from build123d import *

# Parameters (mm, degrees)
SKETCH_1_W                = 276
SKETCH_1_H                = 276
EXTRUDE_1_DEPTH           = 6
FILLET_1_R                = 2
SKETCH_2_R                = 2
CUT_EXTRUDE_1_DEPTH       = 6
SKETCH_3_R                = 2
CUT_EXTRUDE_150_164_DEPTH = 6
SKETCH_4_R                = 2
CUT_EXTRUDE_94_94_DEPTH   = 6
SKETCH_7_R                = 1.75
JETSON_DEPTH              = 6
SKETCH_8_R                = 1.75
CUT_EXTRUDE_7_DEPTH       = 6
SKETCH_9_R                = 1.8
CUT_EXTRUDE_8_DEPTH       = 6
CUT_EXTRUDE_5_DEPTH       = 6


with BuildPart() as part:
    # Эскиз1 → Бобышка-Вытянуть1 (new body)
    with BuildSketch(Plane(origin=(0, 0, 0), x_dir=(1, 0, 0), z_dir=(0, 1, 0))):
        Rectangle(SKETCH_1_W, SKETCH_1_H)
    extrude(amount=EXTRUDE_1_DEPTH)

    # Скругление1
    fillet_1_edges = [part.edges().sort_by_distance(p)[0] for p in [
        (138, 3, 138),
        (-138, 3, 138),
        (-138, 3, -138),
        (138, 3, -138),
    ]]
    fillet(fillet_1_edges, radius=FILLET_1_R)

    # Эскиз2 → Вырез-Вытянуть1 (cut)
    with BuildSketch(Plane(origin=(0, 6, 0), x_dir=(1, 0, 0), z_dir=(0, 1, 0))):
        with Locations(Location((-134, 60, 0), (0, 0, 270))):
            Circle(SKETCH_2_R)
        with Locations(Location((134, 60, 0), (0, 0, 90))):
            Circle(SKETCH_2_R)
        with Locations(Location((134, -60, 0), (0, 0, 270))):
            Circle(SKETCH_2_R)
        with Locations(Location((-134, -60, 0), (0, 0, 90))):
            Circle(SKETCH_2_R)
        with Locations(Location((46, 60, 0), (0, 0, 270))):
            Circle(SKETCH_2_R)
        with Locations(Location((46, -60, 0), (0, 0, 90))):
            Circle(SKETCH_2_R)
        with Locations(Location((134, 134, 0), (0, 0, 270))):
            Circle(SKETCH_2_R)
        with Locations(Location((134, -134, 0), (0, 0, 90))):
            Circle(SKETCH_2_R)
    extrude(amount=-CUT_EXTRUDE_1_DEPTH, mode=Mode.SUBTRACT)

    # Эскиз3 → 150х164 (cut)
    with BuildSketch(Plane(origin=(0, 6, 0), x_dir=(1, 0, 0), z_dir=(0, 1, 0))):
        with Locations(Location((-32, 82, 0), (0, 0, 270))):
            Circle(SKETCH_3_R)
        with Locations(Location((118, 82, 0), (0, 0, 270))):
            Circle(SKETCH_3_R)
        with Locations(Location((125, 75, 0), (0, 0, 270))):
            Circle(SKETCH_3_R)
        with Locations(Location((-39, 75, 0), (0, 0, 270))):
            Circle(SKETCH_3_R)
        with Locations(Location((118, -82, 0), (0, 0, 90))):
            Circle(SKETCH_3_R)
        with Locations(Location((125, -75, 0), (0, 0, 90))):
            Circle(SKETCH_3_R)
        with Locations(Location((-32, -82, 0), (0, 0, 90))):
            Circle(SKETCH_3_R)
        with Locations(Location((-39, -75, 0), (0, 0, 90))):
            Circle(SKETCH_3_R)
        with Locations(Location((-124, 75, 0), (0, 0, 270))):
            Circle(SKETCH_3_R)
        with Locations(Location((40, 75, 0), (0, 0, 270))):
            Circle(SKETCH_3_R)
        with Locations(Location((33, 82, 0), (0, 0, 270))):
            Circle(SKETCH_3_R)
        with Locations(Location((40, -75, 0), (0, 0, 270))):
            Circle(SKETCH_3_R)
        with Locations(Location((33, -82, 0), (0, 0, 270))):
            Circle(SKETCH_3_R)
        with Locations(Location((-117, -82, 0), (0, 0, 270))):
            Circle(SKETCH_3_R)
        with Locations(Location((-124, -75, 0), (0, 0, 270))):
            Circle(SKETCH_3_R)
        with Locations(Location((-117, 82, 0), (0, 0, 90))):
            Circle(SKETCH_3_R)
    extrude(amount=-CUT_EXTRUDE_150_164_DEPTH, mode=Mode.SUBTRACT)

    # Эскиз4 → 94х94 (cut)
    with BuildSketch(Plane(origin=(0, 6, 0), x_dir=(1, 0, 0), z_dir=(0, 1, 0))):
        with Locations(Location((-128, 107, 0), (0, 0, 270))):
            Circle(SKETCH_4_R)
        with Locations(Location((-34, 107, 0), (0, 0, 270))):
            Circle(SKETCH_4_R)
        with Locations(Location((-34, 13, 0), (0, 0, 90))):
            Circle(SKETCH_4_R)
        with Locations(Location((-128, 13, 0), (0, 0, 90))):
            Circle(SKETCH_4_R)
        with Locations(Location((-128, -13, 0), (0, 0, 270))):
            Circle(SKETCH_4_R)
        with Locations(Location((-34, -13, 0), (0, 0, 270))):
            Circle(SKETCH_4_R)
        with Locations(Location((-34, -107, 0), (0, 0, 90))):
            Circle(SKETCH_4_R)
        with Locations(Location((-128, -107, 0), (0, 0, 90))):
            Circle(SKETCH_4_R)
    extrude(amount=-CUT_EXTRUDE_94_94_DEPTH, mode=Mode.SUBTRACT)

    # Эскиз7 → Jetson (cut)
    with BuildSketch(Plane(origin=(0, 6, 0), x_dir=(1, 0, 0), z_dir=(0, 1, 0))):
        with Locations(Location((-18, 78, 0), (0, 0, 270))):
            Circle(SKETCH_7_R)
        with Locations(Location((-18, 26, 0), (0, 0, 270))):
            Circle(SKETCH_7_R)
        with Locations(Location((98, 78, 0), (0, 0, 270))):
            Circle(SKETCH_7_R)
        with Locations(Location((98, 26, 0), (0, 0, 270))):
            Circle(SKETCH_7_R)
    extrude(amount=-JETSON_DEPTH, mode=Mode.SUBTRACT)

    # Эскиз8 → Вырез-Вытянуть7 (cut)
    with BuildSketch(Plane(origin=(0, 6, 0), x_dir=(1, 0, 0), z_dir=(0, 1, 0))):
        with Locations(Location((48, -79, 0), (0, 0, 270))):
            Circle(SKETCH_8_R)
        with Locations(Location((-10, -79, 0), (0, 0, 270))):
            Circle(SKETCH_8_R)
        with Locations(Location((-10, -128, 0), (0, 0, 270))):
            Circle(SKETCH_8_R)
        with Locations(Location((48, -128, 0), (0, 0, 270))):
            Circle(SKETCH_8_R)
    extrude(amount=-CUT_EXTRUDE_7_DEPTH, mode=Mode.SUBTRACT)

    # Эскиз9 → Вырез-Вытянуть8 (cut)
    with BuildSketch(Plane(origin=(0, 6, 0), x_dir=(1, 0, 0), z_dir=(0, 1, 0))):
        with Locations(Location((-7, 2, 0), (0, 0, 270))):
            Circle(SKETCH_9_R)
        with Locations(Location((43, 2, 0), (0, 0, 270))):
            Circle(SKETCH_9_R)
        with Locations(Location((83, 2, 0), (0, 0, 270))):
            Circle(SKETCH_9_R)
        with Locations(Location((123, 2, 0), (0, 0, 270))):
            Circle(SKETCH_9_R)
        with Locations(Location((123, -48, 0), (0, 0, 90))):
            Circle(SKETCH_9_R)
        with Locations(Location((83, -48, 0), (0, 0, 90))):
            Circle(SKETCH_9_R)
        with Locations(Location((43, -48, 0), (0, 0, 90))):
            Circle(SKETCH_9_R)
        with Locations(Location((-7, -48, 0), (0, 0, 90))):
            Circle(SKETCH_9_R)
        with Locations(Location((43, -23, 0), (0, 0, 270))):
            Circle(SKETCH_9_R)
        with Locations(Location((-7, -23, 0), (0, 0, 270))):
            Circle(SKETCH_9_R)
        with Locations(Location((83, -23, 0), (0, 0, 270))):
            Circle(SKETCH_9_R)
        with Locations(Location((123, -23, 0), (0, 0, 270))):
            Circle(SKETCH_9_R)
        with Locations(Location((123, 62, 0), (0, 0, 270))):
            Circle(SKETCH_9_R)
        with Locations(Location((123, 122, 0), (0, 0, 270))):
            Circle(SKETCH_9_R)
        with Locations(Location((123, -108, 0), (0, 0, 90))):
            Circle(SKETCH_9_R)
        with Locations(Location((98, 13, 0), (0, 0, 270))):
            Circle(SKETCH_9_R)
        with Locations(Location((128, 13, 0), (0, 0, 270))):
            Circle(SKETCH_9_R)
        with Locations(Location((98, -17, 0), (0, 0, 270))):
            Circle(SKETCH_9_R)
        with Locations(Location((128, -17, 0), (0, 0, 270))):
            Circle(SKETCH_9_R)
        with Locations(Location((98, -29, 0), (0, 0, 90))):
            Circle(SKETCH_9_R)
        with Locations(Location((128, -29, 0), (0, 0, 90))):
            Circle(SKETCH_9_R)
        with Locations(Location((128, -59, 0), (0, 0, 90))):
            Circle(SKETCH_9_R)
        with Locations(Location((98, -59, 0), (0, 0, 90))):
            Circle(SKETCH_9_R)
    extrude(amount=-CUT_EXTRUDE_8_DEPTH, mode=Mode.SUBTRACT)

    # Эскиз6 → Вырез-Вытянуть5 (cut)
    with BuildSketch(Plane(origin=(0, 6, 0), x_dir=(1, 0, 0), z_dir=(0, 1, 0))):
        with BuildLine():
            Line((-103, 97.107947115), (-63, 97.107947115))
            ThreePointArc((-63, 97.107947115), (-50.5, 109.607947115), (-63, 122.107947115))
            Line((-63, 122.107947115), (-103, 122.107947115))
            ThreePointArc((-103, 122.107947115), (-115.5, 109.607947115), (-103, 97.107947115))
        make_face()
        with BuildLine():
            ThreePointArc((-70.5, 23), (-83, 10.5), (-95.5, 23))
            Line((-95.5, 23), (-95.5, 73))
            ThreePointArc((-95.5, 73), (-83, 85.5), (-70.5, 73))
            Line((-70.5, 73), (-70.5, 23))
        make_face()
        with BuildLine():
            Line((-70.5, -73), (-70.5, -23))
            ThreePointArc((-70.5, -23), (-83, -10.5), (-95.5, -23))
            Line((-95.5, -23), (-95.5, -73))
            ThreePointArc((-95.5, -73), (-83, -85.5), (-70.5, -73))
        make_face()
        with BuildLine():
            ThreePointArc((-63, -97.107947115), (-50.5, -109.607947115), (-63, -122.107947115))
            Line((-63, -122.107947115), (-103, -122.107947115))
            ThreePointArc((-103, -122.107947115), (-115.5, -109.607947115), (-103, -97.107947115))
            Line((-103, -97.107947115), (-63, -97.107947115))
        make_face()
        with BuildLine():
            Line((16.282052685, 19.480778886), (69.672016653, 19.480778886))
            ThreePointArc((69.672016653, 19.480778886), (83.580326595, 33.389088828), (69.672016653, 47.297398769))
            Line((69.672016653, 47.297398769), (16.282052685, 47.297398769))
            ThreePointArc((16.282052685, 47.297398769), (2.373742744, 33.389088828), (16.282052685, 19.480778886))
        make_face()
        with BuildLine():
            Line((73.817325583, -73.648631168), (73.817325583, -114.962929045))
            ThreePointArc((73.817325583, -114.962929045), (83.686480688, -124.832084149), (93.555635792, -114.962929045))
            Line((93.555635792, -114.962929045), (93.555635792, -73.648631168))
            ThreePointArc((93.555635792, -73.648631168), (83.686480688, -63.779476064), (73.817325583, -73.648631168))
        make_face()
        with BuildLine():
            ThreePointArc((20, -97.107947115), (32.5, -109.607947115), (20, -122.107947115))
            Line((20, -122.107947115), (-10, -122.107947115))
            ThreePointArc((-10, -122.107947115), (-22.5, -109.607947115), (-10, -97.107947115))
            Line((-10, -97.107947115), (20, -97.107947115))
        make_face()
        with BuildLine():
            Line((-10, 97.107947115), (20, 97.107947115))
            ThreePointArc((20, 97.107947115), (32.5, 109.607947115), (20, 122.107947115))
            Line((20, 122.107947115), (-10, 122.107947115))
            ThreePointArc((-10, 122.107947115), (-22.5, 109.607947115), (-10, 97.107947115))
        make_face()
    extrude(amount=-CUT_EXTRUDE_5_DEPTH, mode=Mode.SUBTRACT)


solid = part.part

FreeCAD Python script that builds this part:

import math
import FreeCAD as App
import Part
import Sketcher

V = App.Vector
Q = App.Units.Quantity


def edges_at(feature, points):
    """Names of the edges that pass closest to the given points."""
    edges = feature.Shape.Edges
    near = lambda p: min(range(len(edges)), key=lambda i: edges[i].distToShape(Part.Vertex(*p))[0])
    return sorted({f"Edge{near(p) + 1}" for p in points})


def add_polygon(sketch, points):
    """Adds a closed chain of lines whose ends are joined by coincident constraints."""
    first, n = sketch.GeometryCount, len(points)
    for a, b in zip(points, points[1:] + points[:1]):
        sketch.addGeometry(Part.LineSegment(App.Vector(*a, 0), App.Vector(*b, 0)), False)
    for i in range(n):
        sketch.addConstraint(Sketcher.Constraint("Coincident", first + i, 2, first + (i + 1) % n, 1))

doc = App.newDocument("Part")
params = doc.addObject("Spreadsheet::Sheet", "Params")
for row, (alias, value) in enumerate([
    ("sketch1_width", "276 mm"),
    ("pad1_length", "6 mm"),
    ("fillet_radius", "2 mm"),
    ("sketch2_diameter", "4 mm"),
    ("pocket1_length", "6 mm"),
    ("sketch3_diameter", "4 mm"),
    ("pocket2_length", "6 mm"),
    ("sketch4_diameter", "4 mm"),
    ("pocket3_length", "6 mm"),
    ("sketch5_diameter", "3.5 mm"),
    ("pocket4_length", "6 mm"),
    ("sketch6_diameter", "3.5 mm"),
    ("pocket5_length", "6 mm"),
    ("sketch7_diameter", "3.6 mm"),
    ("pocket6_length", "6 mm"),
    ("sketch8_radius", "12.5 mm"),
    ("sketch8_width", "40 mm"),
    ("sketch8_width2", "30 mm"),
    ("sketch8_height", "50 mm"),
    ("pocket7_length", "6 mm"),
], start=1):
    params.set(f"A{row}", alias)
    params.set(f"B{row}", "=" + value)
    params.setAlias(f"B{row}", alias)

body = doc.addObject("PartDesign::Body", "Body")

# Sketch on XZ plane
sketch1 = doc.addObject("Sketcher::SketchObject", "Sketch")
body.addObject(sketch1)
sketch1.AttachmentSupport = (doc.XZ_Plane, [""])
sketch1.MapMode = "FlatFace"
add_polygon(sketch1, [(-138, -138), (-138, 138), (138, 138), (138, -138)])  # lines 0-3
sketch1.addConstraint(Sketcher.Constraint("Vertical", 0))
sketch1.addConstraint(Sketcher.Constraint("Horizontal", 1))
sketch1.addConstraint(Sketcher.Constraint("Vertical", 2))
sketch1.addConstraint(Sketcher.Constraint("Horizontal", 3))
sketch1.addConstraint(Sketcher.Constraint("Symmetric", 0, 2, 2, 2, -1, 1))
sketch1.addConstraint(Sketcher.Constraint("Equal", 3, 0))
sketch1.addConstraint(Sketcher.Constraint("DistanceX", 1, 1, 1, 2, Q("276 mm")))
sketch1.setExpression("Constraints[10]", "Params.sketch1_width")
pad1 = doc.addObject("PartDesign::Pad", "Pad")
body.addObject(pad1)
pad1.Profile = sketch1
pad1.setExpression("Length", "Params.pad1_length")
pad1.Reversed = True
doc.recompute()

fillet = doc.addObject("PartDesign::Fillet", "Fillet")
body.addObject(fillet)
fillet.Base = (pad1, edges_at(pad1, [
    (138, 3, 138),
    (-138, 3, 138),
    (-138, 3, -138),
    (138, 3, -138),
]))
fillet.setExpression("Radius", "Params.fillet_radius")

# Sketch on XZ plane
sketch2 = doc.addObject("Sketcher::SketchObject", "Sketch001")
body.addObject(sketch2)
sketch2.AttachmentSupport = (doc.XZ_Plane, [""])
sketch2.MapMode = "FlatFace"
sketch2.AttachmentOffset = App.Placement(V(0, 0, -6), App.Rotation())
sketch2.addGeometry(Part.Circle(V(-134, -60, 0), V(0, 0, 1), 2), False)
sketch2.addGeometry(Part.Circle(V(134, -60, 0), V(0, 0, 1), 2), False)
sketch2.addGeometry(Part.Circle(V(134, 60, 0), V(0, 0, 1), 2), False)
sketch2.addGeometry(Part.Circle(V(-134, 60, 0), V(0, 0, 1), 2), False)
sketch2.addGeometry(Part.Circle(V(46, -60, 0), V(0, 0, 1), 2), False)
sketch2.addGeometry(Part.Circle(V(46, 60, 0), V(0, 0, 1), 2), False)
sketch2.addGeometry(Part.Circle(V(134, -134, 0), V(0, 0, 1), 2), False)
sketch2.addGeometry(Part.Circle(V(134, 134, 0), V(0, 0, 1), 2), False)
sketch2.addConstraint(Sketcher.Constraint("Equal", 0, 1))
sketch2.addConstraint(Sketcher.Constraint("Equal", 1, 2))
sketch2.addConstraint(Sketcher.Constraint("Equal", 2, 3))
sketch2.addConstraint(Sketcher.Constraint("Equal", 3, 4))
sketch2.addConstraint(Sketcher.Constraint("Equal", 4, 5))
sketch2.addConstraint(Sketcher.Constraint("Equal", 5, 6))
sketch2.addConstraint(Sketcher.Constraint("Equal", 6, 7))
sketch2.addConstraint(Sketcher.Constraint("Symmetric", 0, 3, 2, 3, -1, 1))
sketch2.addConstraint(Sketcher.Constraint("Symmetric", 1, 3, 3, 3, -1, 1))
sketch2.addConstraint(Sketcher.Constraint("Symmetric", 0, 3, 1, 3, -2))
sketch2.addConstraint(Sketcher.Constraint("Symmetric", 4, 3, 5, 3, -1))
sketch2.addConstraint(Sketcher.Constraint("Symmetric", 6, 3, 7, 3, -1))
sketch2.addConstraint(Sketcher.Constraint("Horizontal", 1, 3, 4, 3))
sketch2.addConstraint(Sketcher.Constraint("Vertical", 2, 3, 6, 3))
sketch2.addConstraint(Sketcher.Constraint("Diameter", 0, Q("4 mm")))
sketch2.addConstraint(Sketcher.Constraint("DistanceX", 0, 3, -1, 1, Q("134 mm")))
sketch2.addConstraint(Sketcher.Constraint("DistanceY", 0, 3, -1, 1, Q("60 mm")))
sketch2.addConstraint(Sketcher.Constraint("DistanceX", -1, 1, 4, 3, Q("46 mm")))
sketch2.addConstraint(Sketcher.Constraint("DistanceY", 6, 3, -1, 1, Q("134 mm")))
sketch2.setExpression("Constraints[14]", "Params.sketch2_diameter")
pocket1 = doc.addObject("PartDesign::Pocket", "Pocket")
body.addObject(pocket1)
pocket1.Profile = sketch2
pocket1.setExpression("Length", "Params.pocket1_length")
pocket1.Reversed = True

# Sketch on XZ plane
sketch3 = doc.addObject("Sketcher::SketchObject", "Sketch002")
body.addObject(sketch3)
sketch3.AttachmentSupport = (doc.XZ_Plane, [""])
sketch3.MapMode = "FlatFace"
sketch3.AttachmentOffset = App.Placement(V(0, 0, -6), App.Rotation())
sketch3.addGeometry(Part.Circle(V(-32, -82, 0), V(0, 0, 1), 2), False)
sketch3.addGeometry(Part.Circle(V(118, -82, 0), V(0, 0, 1), 2), False)
sketch3.addGeometry(Part.Circle(V(125, -75, 0), V(0, 0, 1), 2), False)
sketch3.addGeometry(Part.Circle(V(-39, -75, 0), V(0, 0, 1), 2), False)
sketch3.addGeometry(Part.Circle(V(118, 82, 0), V(0, 0, 1), 2), False)
sketch3.addGeometry(Part.Circle(V(125, 75, 0), V(0, 0, 1), 2), False)
sketch3.addGeometry(Part.Circle(V(-32, 82, 0), V(0, 0, 1), 2), False)
sketch3.addGeometry(Part.Circle(V(-39, 75, 0), V(0, 0, 1), 2), False)
sketch3.addGeometry(Part.Circle(V(-124, -75, 0), V(0, 0, 1), 2), False)
sketch3.addGeometry(Part.Circle(V(40, -75, 0), V(0, 0, 1), 2), False)
sketch3.addGeometry(Part.Circle(V(33, -82, 0), V(0, 0, 1), 2), False)
sketch3.addGeometry(Part.Circle(V(40, 75, 0), V(0, 0, 1), 2), False)
sketch3.addGeometry(Part.Circle(V(33, 82, 0), V(0, 0, 1), 2), False)
sketch3.addGeometry(Part.Circle(V(-117, 82, 0), V(0, 0, 1), 2), False)
sketch3.addGeometry(Part.Circle(V(-124, 75, 0), V(0, 0, 1), 2), False)
sketch3.addGeometry(Part.Circle(V(-117, -82, 0), V(0, 0, 1), 2), False)
sketch3.addConstraint(Sketcher.Constraint("Equal", 0, 1))
sketch3.addConstraint(Sketcher.Constraint("Equal", 1, 2))
sketch3.addConstraint(Sketcher.Constraint("Equal", 2, 3))
sketch3.addConstraint(Sketcher.Constraint("Equal", 3, 4))
sketch3.addConstraint(Sketcher.Constraint("Equal", 4, 5))
sketch3.addConstraint(Sketcher.Constraint("Equal", 5, 6))
sketch3.addConstraint(Sketcher.Constraint("Equal", 6, 7))
sketch3.addConstraint(Sketcher.Constraint("Equal", 7, 8))
sketch3.addConstraint(Sketcher.Constraint("Equal", 8, 9))
sketch3.addConstraint(Sketcher.Constraint("Equal", 9, 10))
sketch3.addConstraint(Sketcher.Constraint("Equal", 10, 11))
sketch3.addConstraint(Sketcher.Constraint("Equal", 11, 12))
sketch3.addConstraint(Sketcher.Constraint("Equal", 12, 13))
sketch3.addConstraint(Sketcher.Constraint("Equal", 13, 14))
sketch3.addConstraint(Sketcher.Constraint("Equal", 14, 15))
sketch3.addConstraint(Sketcher.Constraint("Symmetric", 1, 3, 4, 3, -1))
sketch3.addConstraint(Sketcher.Constraint("Symmetric", 2, 3, 5, 3, -1))
sketch3.addConstraint(Sketcher.Constraint("Symmetric", 0, 3, 6, 3, -1))
sketch3.addConstraint(Sketcher.Constraint("Symmetric", 3, 3, 7, 3, -1))
sketch3.addConstraint(Sketcher.Constraint("Symmetric", 9, 3, 11, 3, -1))
sketch3.addConstraint(Sketcher.Constraint("Symmetric", 10, 3, 12, 3, -1))
sketch3.addConstraint(Sketcher.Constraint("Symmetric", 8, 3, 14, 3, -1))
sketch3.addConstraint(Sketcher.Constraint("Symmetric", 13, 3, 15, 3, -1))
sketch3.addConstraint(Sketcher.Constraint("Horizontal", 0, 3, 1, 3))
sketch3.addConstraint(Sketcher.Constraint("Horizontal", 2, 3, 3, 3))
sketch3.addConstraint(Sketcher.Constraint("Horizontal", 3, 3, 8, 3))
sketch3.addConstraint(Sketcher.Constraint("Horizontal", 8, 3, 9, 3))
sketch3.addConstraint(Sketcher.Constraint("Horizontal", 1, 3, 10, 3))
sketch3.addConstraint(Sketcher.Constraint("Horizontal", 12, 3, 13, 3))
sketch3.addConstraint(Sketcher.Constraint("Diameter", 0, Q("4 mm")))
sketch3.addConstraint(Sketcher.Constraint("DistanceX", 0, 3, -1, 1, Q("32 mm")))
sketch3.addConstraint(Sketcher.Constraint("DistanceY", 0, 3, -1, 1, Q("82 mm")))
sketch3.addConstraint(Sketcher.Constraint("DistanceX", -1, 1, 1, 3, Q("118 mm")))
sketch3.addConstraint(Sketcher.Constraint("DistanceX", -1, 1, 2, 3, Q("125 mm")))
sketch3.addConstraint(Sketcher.Constraint("DistanceY", 2, 3, -1, 1, Q("75 mm")))
sketch3.addConstraint(Sketcher.Constraint("DistanceX", 3, 3, -1, 1, Q("39 mm")))
sketch3.addConstraint(Sketcher.Constraint("DistanceX", 8, 3, -1, 1, Q("124 mm")))
sketch3.addConstraint(Sketcher.Constraint("DistanceX", -1, 1, 9, 3, Q("40 mm")))
sketch3.addConstraint(Sketcher.Constraint("DistanceX", -1, 1, 10, 3, Q("33 mm")))
sketch3.addConstraint(Sketcher.Constraint("DistanceX", 13, 3, -1, 1, Q("117 mm")))
sketch3.setExpression("Constraints[29]", "Params.sketch3_diameter")
pocket2 = doc.addObject("PartDesign::Pocket", "Pocket001")
body.addObject(pocket2)
pocket2.Profile = sketch3
pocket2.setExpression("Length", "Params.pocket2_length")
pocket2.Reversed = True

# Sketch on XZ plane
sketch4 = doc.addObject("Sketcher::SketchObject", "Sketch003")
body.addObject(sketch4)
sketch4.AttachmentSupport = (doc.XZ_Plane, [""])
sketch4.MapMode = "FlatFace"
sketch4.AttachmentOffset = App.Placement(V(0, 0, -6), App.Rotation())
sketch4.addGeometry(Part.Circle(V(-128, -107, 0), V(0, 0, 1), 2), False)
sketch4.addGeometry(Part.Circle(V(-34, -107, 0), V(0, 0, 1), 2), False)
sketch4.addGeometry(Part.Circle(V(-34, -13, 0), V(0, 0, 1), 2), False)
sketch4.addGeometry(Part.Circle(V(-128, -13, 0), V(0, 0, 1), 2), False)
sketch4.addGeometry(Part.Circle(V(-128, 13, 0), V(0, 0, 1), 2), False)
sketch4.addGeometry(Part.Circle(V(-34, 13, 0), V(0, 0, 1), 2), False)
sketch4.addGeometry(Part.Circle(V(-34, 107, 0), V(0, 0, 1), 2), False)
sketch4.addGeometry(Part.Circle(V(-128, 107, 0), V(0, 0, 1), 2), False)
sketch4.addConstraint(Sketcher.Constraint("Equal", 0, 1))
sketch4.addConstraint(Sketcher.Constraint("Equal", 1, 2))
sketch4.addConstraint(Sketcher.Constraint("Equal", 2, 3))
sketch4.addConstraint(Sketcher.Constraint("Equal", 3, 4))
sketch4.addConstraint(Sketcher.Constraint("Equal", 4, 5))
sketch4.addConstraint(Sketcher.Constraint("Equal", 5, 6))
sketch4.addConstraint(Sketcher.Constraint("Equal", 6, 7))
sketch4.addConstraint(Sketcher.Constraint("Symmetric", 3, 3, 4, 3, -1))
sketch4.addConstraint(Sketcher.Constraint("Symmetric", 2, 3, 5, 3, -1))
sketch4.addConstraint(Sketcher.Constraint("Symmetric", 1, 3, 6, 3, -1))
sketch4.addConstraint(Sketcher.Constraint("Symmetric", 0, 3, 7, 3, -1))
sketch4.addConstraint(Sketcher.Constraint("Horizontal", 0, 3, 1, 3))
sketch4.addConstraint(Sketcher.Constraint("Horizontal", 2, 3, 3, 3))
sketch4.addConstraint(Sketcher.Constraint("Vertical", 1, 3, 2, 3))
sketch4.addConstraint(Sketcher.Constraint("Vertical", 0, 3, 3, 3))
sketch4.addConstraint(Sketcher.Constraint("Diameter", 0, Q("4 mm")))
sketch4.addConstraint(Sketcher.Constraint("DistanceX", 0, 3, -1, 1, Q("128 mm")))
sketch4.addConstraint(Sketcher.Constraint("DistanceY", 0, 3, -1, 1, Q("107 mm")))
sketch4.addConstraint(Sketcher.Constraint("DistanceX", 1, 3, -1, 1, Q("34 mm")))
sketch4.addConstraint(Sketcher.Constraint("DistanceY", 2, 3, -1, 1, Q("13 mm")))
sketch4.setExpression("Constraints[15]", "Params.sketch4_diameter")
pocket3 = doc.addObject("PartDesign::Pocket", "Pocket002")
body.addObject(pocket3)
pocket3.Profile = sketch4
pocket3.setExpression("Length", "Params.pocket3_length")
pocket3.Reversed = True

# Sketch on XZ plane
sketch5 = doc.addObject("Sketcher::SketchObject", "Sketch004")
body.addObject(sketch5)
sketch5.AttachmentSupport = (doc.XZ_Plane, [""])
sketch5.MapMode = "FlatFace"
sketch5.AttachmentOffset = App.Placement(V(0, 0, -6), App.Rotation())
sketch5.addGeometry(Part.Circle(V(-18, -78, 0), V(0, 0, 1), 1.8), False)
sketch5.addGeometry(Part.Circle(V(-18, -26, 0), V(0, 0, 1), 1.8), False)
sketch5.addGeometry(Part.Circle(V(98, -78, 0), V(0, 0, 1), 1.8), False)
sketch5.addGeometry(Part.Circle(V(98, -26, 0), V(0, 0, 1), 1.8), False)
sketch5.addConstraint(Sketcher.Constraint("Equal", 0, 1))
sketch5.addConstraint(Sketcher.Constraint("Equal", 1, 2))
sketch5.addConstraint(Sketcher.Constraint("Equal", 2, 3))
sketch5.addConstraint(Sketcher.Constraint("Horizontal", 0, 3, 2, 3))
sketch5.addConstraint(Sketcher.Constraint("Horizontal", 1, 3, 3, 3))
sketch5.addConstraint(Sketcher.Constraint("Vertical", 0, 3, 1, 3))
sketch5.addConstraint(Sketcher.Constraint("Vertical", 2, 3, 3, 3))
sketch5.addConstraint(Sketcher.Constraint("Diameter", 0, Q("3.5 mm")))
sketch5.addConstraint(Sketcher.Constraint("DistanceX", 0, 3, -1, 1, Q("18 mm")))
sketch5.addConstraint(Sketcher.Constraint("DistanceY", 0, 3, -1, 1, Q("78 mm")))
sketch5.addConstraint(Sketcher.Constraint("DistanceY", 1, 3, -1, 1, Q("26 mm")))
sketch5.addConstraint(Sketcher.Constraint("DistanceX", -1, 1, 2, 3, Q("98 mm")))
sketch5.setExpression("Constraints[7]", "Params.sketch5_diameter")
pocket4 = doc.addObject("PartDesign::Pocket", "Pocket003")
body.addObject(pocket4)
pocket4.Profile = sketch5
pocket4.setExpression("Length", "Params.pocket4_length")
pocket4.Reversed = True

# Sketch on XZ plane
sketch6 = doc.addObject("Sketcher::SketchObject", "Sketch005")
body.addObject(sketch6)
sketch6.AttachmentSupport = (doc.XZ_Plane, [""])
sketch6.MapMode = "FlatFace"
sketch6.AttachmentOffset = App.Placement(V(0, 0, -6), App.Rotation())
sketch6.addGeometry(Part.Circle(V(48, 79, 0), V(0, 0, 1), 1.8), False)
sketch6.addGeometry(Part.Circle(V(-10, 79, 0), V(0, 0, 1), 1.8), False)
sketch6.addGeometry(Part.Circle(V(-10, 128, 0), V(0, 0, 1), 1.8), False)
sketch6.addGeometry(Part.Circle(V(48, 128, 0), V(0, 0, 1), 1.8), False)
sketch6.addConstraint(Sketcher.Constraint("Equal", 0, 1))
sketch6.addConstraint(Sketcher.Constraint("Equal", 1, 2))
sketch6.addConstraint(Sketcher.Constraint("Equal", 2, 3))
sketch6.addConstraint(Sketcher.Constraint("Horizontal", 0, 3, 1, 3))
sketch6.addConstraint(Sketcher.Constraint("Horizontal", 2, 3, 3, 3))
sketch6.addConstraint(Sketcher.Constraint("Vertical", 1, 3, 2, 3))
sketch6.addConstraint(Sketcher.Constraint("Vertical", 0, 3, 3, 3))
sketch6.addConstraint(Sketcher.Constraint("Diameter", 0, Q("3.5 mm")))
sketch6.addConstraint(Sketcher.Constraint("DistanceX", -1, 1, 0, 3, Q("48 mm")))
sketch6.addConstraint(Sketcher.Constraint("DistanceY", -1, 1, 0, 3, Q("79 mm")))
sketch6.addConstraint(Sketcher.Constraint("DistanceX", 1, 3, -1, 1, Q("10 mm")))
sketch6.addConstraint(Sketcher.Constraint("DistanceY", -1, 1, 2, 3, Q("128 mm")))
sketch6.setExpression("Constraints[7]", "Params.sketch6_diameter")
pocket5 = doc.addObject("PartDesign::Pocket", "Pocket004")
body.addObject(pocket5)
pocket5.Profile = sketch6
pocket5.setExpression("Length", "Params.pocket5_length")
pocket5.Reversed = True

# Sketch on XZ plane
sketch7 = doc.addObject("Sketcher::SketchObject", "Sketch006")
body.addObject(sketch7)
sketch7.AttachmentSupport = (doc.XZ_Plane, [""])
sketch7.MapMode = "FlatFace"
sketch7.AttachmentOffset = App.Placement(V(0, 0, -6), App.Rotation())
sketch7.addGeometry(Part.Circle(V(-7, -2, 0), V(0, 0, 1), 1.8), False)
sketch7.addGeometry(Part.Circle(V(43, -2, 0), V(0, 0, 1), 1.8), False)
sketch7.addGeometry(Part.Circle(V(83, -2, 0), V(0, 0, 1), 1.8), False)
sketch7.addGeometry(Part.Circle(V(123, -2, 0), V(0, 0, 1), 1.8), False)
sketch7.addGeometry(Part.Circle(V(123, 48, 0), V(0, 0, 1), 1.8), False)
sketch7.addGeometry(Part.Circle(V(83, 48, 0), V(0, 0, 1), 1.8), False)
sketch7.addGeometry(Part.Circle(V(43, 48, 0), V(0, 0, 1), 1.8), False)
sketch7.addGeometry(Part.Circle(V(-7, 48, 0), V(0, 0, 1), 1.8), False)
sketch7.addGeometry(Part.Circle(V(43, 23, 0), V(0, 0, 1), 1.8), False)
sketch7.addGeometry(Part.Circle(V(-7, 23, 0), V(0, 0, 1), 1.8), False)
sketch7.addGeometry(Part.Circle(V(83, 23, 0), V(0, 0, 1), 1.8), False)
sketch7.addGeometry(Part.Circle(V(123, 23, 0), V(0, 0, 1), 1.8), False)
sketch7.addGeometry(Part.Circle(V(123, -62, 0), V(0, 0, 1), 1.8), False)
sketch7.addGeometry(Part.Circle(V(123, -122, 0), V(0, 0, 1), 1.8), False)
sketch7.addGeometry(Part.Circle(V(123, 108, 0), V(0, 0, 1), 1.8), False)
sketch7.addGeometry(Part.Circle(V(98, -13, 0), V(0, 0, 1), 1.8), False)
sketch7.addGeometry(Part.Circle(V(128, -13, 0), V(0, 0, 1), 1.8), False)
sketch7.addGeometry(Part.Circle(V(98, 17, 0), V(0, 0, 1), 1.8), False)
sketch7.addGeometry(Part.Circle(V(128, 17, 0), V(0, 0, 1), 1.8), False)
sketch7.addGeometry(Part.Circle(V(98, 29, 0), V(0, 0, 1), 1.8), False)
sketch7.addGeometry(Part.Circle(V(128, 29, 0), V(0, 0, 1), 1.8), False)
sketch7.addGeometry(Part.Circle(V(128, 59, 0), V(0, 0, 1), 1.8), False)
sketch7.addGeometry(Part.Circle(V(98, 59, 0), V(0, 0, 1), 1.8), False)
sketch7.addConstraint(Sketcher.Constraint("Equal", 0, 1))
sketch7.addConstraint(Sketcher.Constraint("Equal", 1, 2))
sketch7.addConstraint(Sketcher.Constraint("Equal", 2, 3))
sketch7.addConstraint(Sketcher.Constraint("Equal", 3, 4))
sketch7.addConstraint(Sketcher.Constraint("Equal", 4, 5))
sketch7.addConstraint(Sketcher.Constraint("Equal", 5, 6))
sketch7.addConstraint(Sketcher.Constraint("Equal", 6, 7))
sketch7.addConstraint(Sketcher.Constraint("Equal", 7, 8))
sketch7.addConstraint(Sketcher.Constraint("Equal", 8, 9))
sketch7.addConstraint(Sketcher.Constraint("Equal", 9, 10))
sketch7.addConstraint(Sketcher.Constraint("Equal", 10, 11))
sketch7.addConstraint(Sketcher.Constraint("Equal", 11, 12))
sketch7.addConstraint(Sketcher.Constraint("Equal", 12, 13))
sketch7.addConstraint(Sketcher.Constraint("Equal", 13, 14))
sketch7.addConstraint(Sketcher.Constraint("Equal", 14, 15))
sketch7.addConstraint(Sketcher.Constraint("Equal", 15, 16))
sketch7.addConstraint(Sketcher.Constraint("Equal", 16, 17))
sketch7.addConstraint(Sketcher.Constraint("Equal", 17, 18))
sketch7.addConstraint(Sketcher.Constraint("Equal", 18, 19))
sketch7.addConstraint(Sketcher.Constraint("Equal", 19, 20))
sketch7.addConstraint(Sketcher.Constraint("Equal", 20, 21))
sketch7.addConstraint(Sketcher.Constraint("Equal", 21, 22))
sketch7.addConstraint(Sketcher.Constraint("Horizontal", 0, 3, 1, 3))
sketch7.addConstraint(Sketcher.Constraint("Horizontal", 1, 3, 2, 3))
sketch7.addConstraint(Sketcher.Constraint("Horizontal", 2, 3, 3, 3))
sketch7.addConstraint(Sketcher.Constraint("Horizontal", 4, 3, 5, 3))
sketch7.addConstraint(Sketcher.Constraint("Horizontal", 5, 3, 6, 3))
sketch7.addConstraint(Sketcher.Constraint("Horizontal", 6, 3, 7, 3))
sketch7.addConstraint(Sketcher.Constraint("Horizontal", 8, 3, 9, 3))
sketch7.addConstraint(Sketcher.Constraint("Horizontal", 9, 3, 10, 3))
sketch7.addConstraint(Sketcher.Constraint("Horizontal", 10, 3, 11, 3))
sketch7.addConstraint(Sketcher.Constraint("Horizontal", 15, 3, 16, 3))
sketch7.addConstraint(Sketcher.Constraint("Horizontal", 17, 3, 18, 3))
sketch7.addConstraint(Sketcher.Constraint("Horizontal", 19, 3, 20, 3))
sketch7.addConstraint(Sketcher.Constraint("Horizontal", 21, 3, 22, 3))
sketch7.addConstraint(Sketcher.Constraint("Vertical", 3, 3, 4, 3))
sketch7.addConstraint(Sketcher.Constraint("Vertical", 2, 3, 5, 3))
sketch7.addConstraint(Sketcher.Constraint("Vertical", 1, 3, 6, 3))
sketch7.addConstraint(Sketcher.Constraint("Vertical", 0, 3, 7, 3))
sketch7.addConstraint(Sketcher.Constraint("Vertical", 6, 3, 8, 3))
sketch7.addConstraint(Sketcher.Constraint("Vertical", 7, 3, 9, 3))
sketch7.addConstraint(Sketcher.Constraint("Vertical", 5, 3, 10, 3))
sketch7.addConstraint(Sketcher.Constraint("Vertical", 4, 3, 11, 3))
sketch7.addConstraint(Sketcher.Constraint("Vertical", 11, 3, 12, 3))
sketch7.addConstraint(Sketcher.Constraint("Vertical", 12, 3, 13, 3))
sketch7.addConstraint(Sketcher.Constraint("Vertical", 13, 3, 14, 3))
sketch7.addConstraint(Sketcher.Constraint("Vertical", 15, 3, 17, 3))
sketch7.addConstraint(Sketcher.Constraint("Vertical", 16, 3, 18, 3))
sketch7.addConstraint(Sketcher.Constraint("Vertical", 17, 3, 19, 3))
sketch7.addConstraint(Sketcher.Constraint("Vertical", 18, 3, 20, 3))
sketch7.addConstraint(Sketcher.Constraint("Vertical", 20, 3, 21, 3))
sketch7.addConstraint(Sketcher.Constraint("Vertical", 19, 3, 22, 3))
sketch7.addConstraint(Sketcher.Constraint("Diameter", 0, Q("3.6 mm")))
sketch7.addConstraint(Sketcher.Constraint("DistanceX", 0, 3, -1, 1, Q("7 mm")))
sketch7.addConstraint(Sketcher.Constraint("DistanceY", 0, 3, -1, 1, Q("2 mm")))
sketch7.addConstraint(Sketcher.Constraint("DistanceX", -1, 1, 1, 3, Q("43 mm")))
sketch7.addConstraint(Sketcher.Constraint("DistanceX", -1, 1, 2, 3, Q("83 mm")))
sketch7.addConstraint(Sketcher.Constraint("DistanceX", -1, 1, 3, 3, Q("123 mm")))
sketch7.addConstraint(Sketcher.Constraint("DistanceY", -1, 1, 4, 3, Q("48 mm")))
sketch7.addConstraint(Sketcher.Constraint("DistanceY", -1, 1, 8, 3, Q("23 mm")))
sketch7.addConstraint(Sketcher.Constraint("DistanceY", 12, 3, -1, 1, Q("62 mm")))
sketch7.addConstraint(Sketcher.Constraint("DistanceY", 13, 3, -1, 1, Q("122 mm")))
sketch7.addConstraint(Sketcher.Constraint("DistanceY", -1, 1, 14, 3, Q("108 mm")))
sketch7.addConstraint(Sketcher.Constraint("DistanceX", -1, 1, 15, 3, Q("98 mm")))
sketch7.addConstraint(Sketcher.Constraint("DistanceY", 15, 3, -1, 1, Q("13 mm")))
sketch7.addConstraint(Sketcher.Constraint("DistanceX", -1, 1, 16, 3, Q("128 mm")))
sketch7.addConstraint(Sketcher.Constraint("DistanceY", -1, 1, 17, 3, Q("17 mm")))
sketch7.addConstraint(Sketcher.Constraint("DistanceY", -1, 1, 19, 3, Q("29 mm")))
sketch7.addConstraint(Sketcher.Constraint("DistanceY", -1, 1, 21, 3, Q("59 mm")))
sketch7.setExpression("Constraints[52]", "Params.sketch7_diameter")
pocket6 = doc.addObject("PartDesign::Pocket", "Pocket005")
body.addObject(pocket6)
pocket6.Profile = sketch7
pocket6.setExpression("Length", "Params.pocket6_length")
pocket6.Reversed = True

# Sketch on XZ plane
sketch8 = doc.addObject("Sketcher::SketchObject", "Sketch007")
body.addObject(sketch8)
sketch8.AttachmentSupport = (doc.XZ_Plane, [""])
sketch8.MapMode = "FlatFace"
sketch8.AttachmentOffset = App.Placement(V(0, 0, -6), App.Rotation())
sketch8.addGeometry(Part.LineSegment(V(-103, -97, 0), V(-63, -97, 0)), False)
sketch8.addGeometry(Part.ArcOfCircle(Part.Circle(V(-63, -110, 0), V(0, 0, 1), 12), math.radians(-90), math.radians(90)), False)
sketch8.addGeometry(Part.LineSegment(V(-63, -122, 0), V(-103, -122, 0)), False)
sketch8.addGeometry(Part.ArcOfCircle(Part.Circle(V(-103, -110, 0), V(0, 0, 1), 12), math.radians(90), math.radians(270)), False)
sketch8.addGeometry(Part.ArcOfCircle(Part.Circle(V(-83, -23, 0), V(0, 0, 1), 12), math.radians(0), math.radians(180)), False)
sketch8.addGeometry(Part.LineSegment(V(-70, -23, 0), V(-70, -73, 0)), False)
sketch8.addGeometry(Part.ArcOfCircle(Part.Circle(V(-83, -73, 0), V(0, 0, 1), 12), math.radians(180), math.radians(360)), False)
sketch8.addGeometry(Part.LineSegment(V(-96, -73, 0), V(-96, -23, 0)), False)
sketch8.addGeometry(Part.LineSegment(V(-70, 73, 0), V(-70, 23, 0)), False)
sketch8.addGeometry(Part.ArcOfCircle(Part.Circle(V(-83, 23, 0), V(0, 0, 1), 12), math.radians(180), math.radians(360)), False)
sketch8.addGeometry(Part.LineSegment(V(-96, 23, 0), V(-96, 73, 0)), False)
sketch8.addGeometry(Part.ArcOfCircle(Part.Circle(V(-83, 73, 0), V(0, 0, 1), 12), math.radians(0), math.radians(180)), False)
sketch8.addGeometry(Part.ArcOfCircle(Part.Circle(V(-63, 110, 0), V(0, 0, 1), 12), math.radians(-90), math.radians(90)), False)
sketch8.addGeometry(Part.LineSegment(V(-63, 97, 0), V(-103, 97, 0)), False)
sketch8.addGeometry(Part.ArcOfCircle(Part.Circle(V(-103, 110, 0), V(0, 0, 1), 12), math.radians(90), math.radians(270)), False)
sketch8.addGeometry(Part.LineSegment(V(-103, 122, 0), V(-63, 122, 0)), False)
sketch8.addGeometry(Part.LineSegment(V(16, -19, 0), V(70, -19, 0)), False)
sketch8.addGeometry(Part.ArcOfCircle(Part.Circle(V(70, -33, 0), V(0, 0, 1), 14), math.radians(-90), math.radians(90)), False)
sketch8.addGeometry(Part.LineSegment(V(70, -47, 0), V(16, -47, 0)), False)
sketch8.addGeometry(Part.ArcOfCircle(Part.Circle(V(16, -33, 0), V(0, 0, 1), 14), math.radians(90), math.radians(270)), False)
sketch8.addGeometry(Part.LineSegment(V(74, 74, 0), V(74, 115, 0)), False)
sketch8.addGeometry(Part.ArcOfCircle(Part.Circle(V(84, 115, 0), V(0, 0, 1), 10), math.radians(0), math.radians(180)), False)
sketch8.addGeometry(Part.LineSegment(V(94, 115, 0), V(94, 74, 0)), False)
sketch8.addGeometry(Part.ArcOfCircle(Part.Circle(V(84, 74, 0), V(0, 0, 1), 10), math.radians(-180), math.radians(0)), False)
sketch8.addGeometry(Part.ArcOfCircle(Part.Circle(V(20, 110, 0), V(0, 0, 1), 12), math.radians(-90), math.radians(90)), False)
sketch8.addGeometry(Part.LineSegment(V(20, 97, 0), V(-10, 97, 0)), False)
sketch8.addGeometry(Part.ArcOfCircle(Part.Circle(V(-10, 110, 0), V(0, 0, 1), 12), math.radians(90), math.radians(270)), False)
sketch8.addGeometry(Part.LineSegment(V(-10, 122, 0), V(20, 122, 0)), False)
sketch8.addGeometry(Part.LineSegment(V(-10, -97, 0), V(20, -97, 0)), False)
sketch8.addGeometry(Part.ArcOfCircle(Part.Circle(V(20, -110, 0), V(0, 0, 1), 12), math.radians(-90), math.radians(90)), False)
sketch8.addGeometry(Part.LineSegment(V(20, -122, 0), V(-10, -122, 0)), False)
sketch8.addGeometry(Part.ArcOfCircle(Part.Circle(V(-10, -110, 0), V(0, 0, 1), 12), math.radians(90), math.radians(270)), False)
sketch8.addConstraint(Sketcher.Constraint("Tangent", 0, 2, 1, 2))
sketch8.addConstraint(Sketcher.Constraint("Tangent", 1, 1, 2, 1))
sketch8.addConstraint(Sketcher.Constraint("Tangent", 2, 2, 3, 2))
sketch8.addConstraint(Sketcher.Constraint("Tangent", 3, 1, 0, 1))
sketch8.addConstraint(Sketcher.Constraint("Tangent", 4, 1, 5, 1))
sketch8.addConstraint(Sketcher.Constraint("Tangent", 5, 2, 6, 2))
sketch8.addConstraint(Sketcher.Constraint("Tangent", 6, 1, 7, 1))
sketch8.addConstraint(Sketcher.Constraint("Tangent", 7, 2, 4, 2))
sketch8.addConstraint(Sketcher.Constraint("Tangent", 8, 2, 9, 2))
sketch8.addConstraint(Sketcher.Constraint("Tangent", 9, 1, 10, 1))
sketch8.addConstraint(Sketcher.Constraint("Tangent", 10, 2, 11, 2))
sketch8.addConstraint(Sketcher.Constraint("Tangent", 11, 1, 8, 1))
sketch8.addConstraint(Sketcher.Constraint("Tangent", 12, 1, 13, 1))
sketch8.addConstraint(Sketcher.Constraint("Tangent", 13, 2, 14, 2))
sketch8.addConstraint(Sketcher.Constraint("Tangent", 14, 1, 15, 1))
sketch8.addConstraint(Sketcher.Constraint("Tangent", 15, 2, 12, 2))
sketch8.addConstraint(Sketcher.Constraint("Tangent", 16, 2, 17, 2))
sketch8.addConstraint(Sketcher.Constraint("Tangent", 17, 1, 18, 1))
sketch8.addConstraint(Sketcher.Constraint("Tangent", 18, 2, 19, 2))
sketch8.addConstraint(Sketcher.Constraint("Tangent", 19, 1, 16, 1))
sketch8.addConstraint(Sketcher.Constraint("Tangent", 20, 2, 21, 2))
sketch8.addConstraint(Sketcher.Constraint("Tangent", 21, 1, 22, 1))
sketch8.addConstraint(Sketcher.Constraint("Tangent", 22, 2, 23, 2))
sketch8.addConstraint(Sketcher.Constraint("Tangent", 23, 1, 20, 1))
sketch8.addConstraint(Sketcher.Constraint("Tangent", 24, 1, 25, 1))
sketch8.addConstraint(Sketcher.Constraint("Tangent", 25, 2, 26, 2))
sketch8.addConstraint(Sketcher.Constraint("Tangent", 26, 1, 27, 1))
sketch8.addConstraint(Sketcher.Constraint("Tangent", 27, 2, 24, 2))
sketch8.addConstraint(Sketcher.Constraint("Tangent", 28, 2, 29, 2))
sketch8.addConstraint(Sketcher.Constraint("Tangent", 29, 1, 30, 1))
sketch8.addConstraint(Sketcher.Constraint("Tangent", 30, 2, 31, 2))
sketch8.addConstraint(Sketcher.Constraint("Tangent", 31, 1, 28, 1))
sketch8.addConstraint(Sketcher.Constraint("Horizontal", 0))
sketch8.addConstraint(Sketcher.Constraint("Horizontal", 2))
sketch8.addConstraint(Sketcher.Constraint("Vertical", 5))
sketch8.addConstraint(Sketcher.Constraint("Vertical", 7))
sketch8.addConstraint(Sketcher.Constraint("Vertical", 8))
sketch8.addConstraint(Sketcher.Constraint("Vertical", 10))
sketch8.addConstraint(Sketcher.Constraint("Horizontal", 13))
sketch8.addConstraint(Sketcher.Constraint("Horizontal", 15))
sketch8.addConstraint(Sketcher.Constraint("Horizontal", 16))
sketch8.addConstraint(Sketcher.Constraint("Horizontal", 18))
sketch8.addConstraint(Sketcher.Constraint("Vertical", 20))
sketch8.addConstraint(Sketcher.Constraint("Vertical", 22))
sketch8.addConstraint(Sketcher.Constraint("Horizontal", 25))
sketch8.addConstraint(Sketcher.Constraint("Horizontal", 27))
sketch8.addConstraint(Sketcher.Constraint("Horizontal", 28))
sketch8.addConstraint(Sketcher.Constraint("Horizontal", 30))
sketch8.addConstraint(Sketcher.Constraint("Equal", 3, 4))
sketch8.addConstraint(Sketcher.Constraint("Equal", 6, 9))
sketch8.addConstraint(Sketcher.Constraint("Equal", 11, 12))
sketch8.addConstraint(Sketcher.Constraint("Equal", 14, 24))
sketch8.addConstraint(Sketcher.Constraint("Equal", 26, 29))
sketch8.addConstraint(Sketcher.Constraint("Symmetric", 4, 3, 9, 3, -1))
sketch8.addConstraint(Sketcher.Constraint("Symmetric", 1, 3, 12, 3, -1))
sketch8.addConstraint(Sketcher.Constraint("Symmetric", 24, 3, 29, 3, -1))
sketch8.addConstraint(Sketcher.Constraint("Horizontal", 14, 3, 24, 3))
sketch8.addConstraint(Sketcher.Constraint("Vertical", 3, 3, 14, 3))
sketch8.addConstraint(Sketcher.Constraint("Vertical", 26, 3, 31, 3))
sketch8.addConstraint(Sketcher.Constraint("Equal", 7, 8))
sketch8.addConstraint(Sketcher.Constraint("Radius", 1, Q("12.5 mm")))
sketch8.addConstraint(Sketcher.Constraint("DistanceX", 0, 1, 0, 2, Q("40 mm")))
sketch8.addConstraint(Sketcher.Constraint("DistanceX", 25, 2, 25, 1, Q("30 mm")))
sketch8.addConstraint(Sketcher.Constraint("DistanceY", 5, 2, 5, 1, Q("50 mm")))
sketch8.addConstraint(Sketcher.Constraint("DistanceX", 1, 3, -1, 1, Q("63 mm")))
sketch8.addConstraint(Sketcher.Constraint("DistanceX", 4, 3, -1, 1, Q("83 mm")))
sketch8.addConstraint(Sketcher.Constraint("DistanceY", 4, 3, -1, 1, Q("23 mm")))
sketch8.addConstraint(Sketcher.Constraint("DistanceX", -1, 1, 24, 3, Q("20 mm")))
sketch8.addConstraint(Sketcher.Constraint("Radius", 17, Q("13.90831 mm")))
sketch8.addConstraint(Sketcher.Constraint("Radius", 21, Q("9.869155 mm")))
sketch8.addConstraint(Sketcher.Constraint("DistanceY", 17, 1, -1, 1, Q("47.297399 mm")))
sketch8.addConstraint(Sketcher.Constraint("DistanceX", 16, 1, 16, 2, Q("53.389964 mm")))
sketch8.addConstraint(Sketcher.Constraint("DistanceY", 20, 1, 20, 2, Q("41.314298 mm")))
sketch8.addConstraint(Sketcher.Constraint("DistanceX", -1, 1, 21, 3, Q("83.686481 mm")))
sketch8.addConstraint(Sketcher.Constraint("DistanceY", -1, 1, 21, 3, Q("114.962929 mm")))
sketch8.addConstraint(Sketcher.Constraint("DistanceY", 1, 3, 17, 3, Q("76.218858 mm")))
sketch8.addConstraint(Sketcher.Constraint("DistanceX", 19, 3, 21, 3, Q("67.404428 mm")))
sketch8.setExpression("Constraints[60]", "Params.sketch8_radius")
sketch8.setExpression("Constraints[61]", "Params.sketch8_width")
sketch8.setExpression("Constraints[62]", "Params.sketch8_width2")
sketch8.setExpression("Constraints[63]", "Params.sketch8_height")
pocket7 = doc.addObject("PartDesign::Pocket", "Pocket006")
body.addObject(pocket7)
pocket7.Profile = sketch8
pocket7.setExpression("Length", "Params.pocket7_length")
pocket7.Reversed = True

doc.recompute()
